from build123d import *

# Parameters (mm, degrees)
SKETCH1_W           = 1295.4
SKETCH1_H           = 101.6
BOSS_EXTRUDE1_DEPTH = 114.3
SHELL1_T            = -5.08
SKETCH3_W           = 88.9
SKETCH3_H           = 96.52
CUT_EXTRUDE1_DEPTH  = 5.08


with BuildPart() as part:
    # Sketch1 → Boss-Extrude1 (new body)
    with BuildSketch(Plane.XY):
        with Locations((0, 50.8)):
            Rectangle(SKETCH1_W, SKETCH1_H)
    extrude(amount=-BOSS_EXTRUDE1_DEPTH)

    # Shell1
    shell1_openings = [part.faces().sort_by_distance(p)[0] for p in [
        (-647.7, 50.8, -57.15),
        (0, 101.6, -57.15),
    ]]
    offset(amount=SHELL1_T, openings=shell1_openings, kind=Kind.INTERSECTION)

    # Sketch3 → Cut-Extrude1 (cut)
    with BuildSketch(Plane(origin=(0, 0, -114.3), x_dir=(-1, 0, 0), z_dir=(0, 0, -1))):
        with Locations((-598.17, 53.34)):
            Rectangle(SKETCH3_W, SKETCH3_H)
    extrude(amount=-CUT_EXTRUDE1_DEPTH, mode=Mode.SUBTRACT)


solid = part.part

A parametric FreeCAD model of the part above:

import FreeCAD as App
import Part
import Sketcher
from FreeCAD import Vector
Q = App.Units.Quantity


def faces_at(feature, points):
    """Names of the faces that lie closest to the given points."""
    faces = feature.Shape.Faces
    near = lambda p: min(range(len(faces)), key=lambda i: faces[i].distToShape(Part.Vertex(*p))[0])
    return sorted({f"Face{near(p) + 1}" for p in points})

doc = App.newDocument("Part")
body = doc.addObject("PartDesign::Body", "Body")

# Sketch on XY plane
sketch1 = doc.addObject("Sketcher::SketchObject", "Sketch")
body.addObject(sketch1)
sketch1.AttachmentSupport = (doc.XY_Plane, [""])
sketch1.MapMode = "FlatFace"
sketch1.addGeometry([
    Part.LineSegment(Vector(-647.7, 101.6, 0), Vector(-647.7, 0, 0)),
    Part.LineSegment(Vector(-647.7, 0, 0), Vector(647.7, 0, 0)),
    Part.LineSegment(Vector(647.7, 0, 0), Vector(647.7, 101.6, 0)),
    Part.LineSegment(Vector(647.7, 101.6, 0), Vector(-647.7, 101.6, 0)),
], False)
sketch1.addConstraint([
    Sketcher.Constraint("Coincident", 0, 2, 1, 1),
    Sketcher.Constraint("Coincident", 1, 2, 2, 1),
    Sketcher.Constraint("Coincident", 2, 2, 3, 1),
    Sketcher.Constraint("Coincident", 3, 2, 0, 1),
    Sketcher.Constraint("Vertical", 0),
    Sketcher.Constraint("Horizontal", 1),
    Sketcher.Constraint("Vertical", 2),
    Sketcher.Constraint("Horizontal", 3),
    Sketcher.Constraint("Symmetric", 0, 2, 1, 2, -1, 1),
    Sketcher.Constraint("DistanceX", 1, 1, 1, 2, Q("51 in")),
    Sketcher.Constraint("DistanceY", 0, 2, 0, 1, Q("4 in")),
])
pad1 = doc.addObject("PartDesign::Pad", "Pad")
body.addObject(pad1)
pad1.Profile = sketch1
pad1.Length = Q("4.5 in")
pad1.Reversed = True
doc.recompute()

thickness = doc.addObject("PartDesign::Thickness", "Thickness")
body.addObject(thickness)
thickness.Base = (pad1, faces_at(pad1, [(-647.7, 50.8, -57.15), (0, 101.6, -57.15)]))
thickness.Value = Q("0.2 in")
thickness.Reversed = True
thickness.Join = "Intersection"

# Sketch on XY plane
sketch2 = doc.addObject("Sketcher::SketchObject", "Sketch001")
body.addObject(sketch2)
sketch2.AttachmentSupport = (doc.XY_Plane, [""])
sketch2.MapMode = "FlatFace"
sketch2.AttachmentOffset = App.Placement(Vector(0, 0, -4.5 * 25.4), App.Rotation())
sketch2.addGeometry([
    Part.LineSegment(Vector(642.62, 101.6, 0), Vector(642.62, 5.08, 0)),
    Part.LineSegment(Vector(642.62, 5.08, 0), Vector(553.72, 5.08, 0)),
    Part.LineSegment(Vector(553.72, 5.08, 0), Vector(553.72, 101.6, 0)),
    Part.LineSegment(Vector(553.72, 101.6, 0), Vector(642.62, 101.6, 0)),
], False)
sketch2.addConstraint([
    Sketcher.Constraint("Coincident", 0, 2, 1, 1),
    Sketcher.Constraint("Coincident", 1, 2, 2, 1),
    Sketcher.Constraint("Coincident", 2, 2, 3, 1),
    Sketcher.Constraint("Coincident", 3, 2, 0, 1),
    Sketcher.Constraint("Vertical", 0),
    Sketcher.Constraint("Horizontal", 1),
    Sketcher.Constraint("Vertical", 2),
    Sketcher.Constraint("Horizontal", 3),
    Sketcher.Constraint("DistanceX", 1, 2, 1, 1, Q("3.5 in")),
    Sketcher.Constraint("DistanceY", 0, 2, 0, 1, Q("3.8 in")),
    Sketcher.Constraint("DistanceY", -1, 1, 2, 2, Q("4 in")),
    Sketcher.Constraint("DistanceX", -1, 1, 0, 2, Q("25.3 in")),
])
pocket1 = doc.addObject("PartDesign::Pocket", "Pocket")
body.addObject(pocket1)
pocket1.Profile = sketch2
pocket1.Length = Q("0.2 in")
pocket1.Reversed = True

doc.recompute()
